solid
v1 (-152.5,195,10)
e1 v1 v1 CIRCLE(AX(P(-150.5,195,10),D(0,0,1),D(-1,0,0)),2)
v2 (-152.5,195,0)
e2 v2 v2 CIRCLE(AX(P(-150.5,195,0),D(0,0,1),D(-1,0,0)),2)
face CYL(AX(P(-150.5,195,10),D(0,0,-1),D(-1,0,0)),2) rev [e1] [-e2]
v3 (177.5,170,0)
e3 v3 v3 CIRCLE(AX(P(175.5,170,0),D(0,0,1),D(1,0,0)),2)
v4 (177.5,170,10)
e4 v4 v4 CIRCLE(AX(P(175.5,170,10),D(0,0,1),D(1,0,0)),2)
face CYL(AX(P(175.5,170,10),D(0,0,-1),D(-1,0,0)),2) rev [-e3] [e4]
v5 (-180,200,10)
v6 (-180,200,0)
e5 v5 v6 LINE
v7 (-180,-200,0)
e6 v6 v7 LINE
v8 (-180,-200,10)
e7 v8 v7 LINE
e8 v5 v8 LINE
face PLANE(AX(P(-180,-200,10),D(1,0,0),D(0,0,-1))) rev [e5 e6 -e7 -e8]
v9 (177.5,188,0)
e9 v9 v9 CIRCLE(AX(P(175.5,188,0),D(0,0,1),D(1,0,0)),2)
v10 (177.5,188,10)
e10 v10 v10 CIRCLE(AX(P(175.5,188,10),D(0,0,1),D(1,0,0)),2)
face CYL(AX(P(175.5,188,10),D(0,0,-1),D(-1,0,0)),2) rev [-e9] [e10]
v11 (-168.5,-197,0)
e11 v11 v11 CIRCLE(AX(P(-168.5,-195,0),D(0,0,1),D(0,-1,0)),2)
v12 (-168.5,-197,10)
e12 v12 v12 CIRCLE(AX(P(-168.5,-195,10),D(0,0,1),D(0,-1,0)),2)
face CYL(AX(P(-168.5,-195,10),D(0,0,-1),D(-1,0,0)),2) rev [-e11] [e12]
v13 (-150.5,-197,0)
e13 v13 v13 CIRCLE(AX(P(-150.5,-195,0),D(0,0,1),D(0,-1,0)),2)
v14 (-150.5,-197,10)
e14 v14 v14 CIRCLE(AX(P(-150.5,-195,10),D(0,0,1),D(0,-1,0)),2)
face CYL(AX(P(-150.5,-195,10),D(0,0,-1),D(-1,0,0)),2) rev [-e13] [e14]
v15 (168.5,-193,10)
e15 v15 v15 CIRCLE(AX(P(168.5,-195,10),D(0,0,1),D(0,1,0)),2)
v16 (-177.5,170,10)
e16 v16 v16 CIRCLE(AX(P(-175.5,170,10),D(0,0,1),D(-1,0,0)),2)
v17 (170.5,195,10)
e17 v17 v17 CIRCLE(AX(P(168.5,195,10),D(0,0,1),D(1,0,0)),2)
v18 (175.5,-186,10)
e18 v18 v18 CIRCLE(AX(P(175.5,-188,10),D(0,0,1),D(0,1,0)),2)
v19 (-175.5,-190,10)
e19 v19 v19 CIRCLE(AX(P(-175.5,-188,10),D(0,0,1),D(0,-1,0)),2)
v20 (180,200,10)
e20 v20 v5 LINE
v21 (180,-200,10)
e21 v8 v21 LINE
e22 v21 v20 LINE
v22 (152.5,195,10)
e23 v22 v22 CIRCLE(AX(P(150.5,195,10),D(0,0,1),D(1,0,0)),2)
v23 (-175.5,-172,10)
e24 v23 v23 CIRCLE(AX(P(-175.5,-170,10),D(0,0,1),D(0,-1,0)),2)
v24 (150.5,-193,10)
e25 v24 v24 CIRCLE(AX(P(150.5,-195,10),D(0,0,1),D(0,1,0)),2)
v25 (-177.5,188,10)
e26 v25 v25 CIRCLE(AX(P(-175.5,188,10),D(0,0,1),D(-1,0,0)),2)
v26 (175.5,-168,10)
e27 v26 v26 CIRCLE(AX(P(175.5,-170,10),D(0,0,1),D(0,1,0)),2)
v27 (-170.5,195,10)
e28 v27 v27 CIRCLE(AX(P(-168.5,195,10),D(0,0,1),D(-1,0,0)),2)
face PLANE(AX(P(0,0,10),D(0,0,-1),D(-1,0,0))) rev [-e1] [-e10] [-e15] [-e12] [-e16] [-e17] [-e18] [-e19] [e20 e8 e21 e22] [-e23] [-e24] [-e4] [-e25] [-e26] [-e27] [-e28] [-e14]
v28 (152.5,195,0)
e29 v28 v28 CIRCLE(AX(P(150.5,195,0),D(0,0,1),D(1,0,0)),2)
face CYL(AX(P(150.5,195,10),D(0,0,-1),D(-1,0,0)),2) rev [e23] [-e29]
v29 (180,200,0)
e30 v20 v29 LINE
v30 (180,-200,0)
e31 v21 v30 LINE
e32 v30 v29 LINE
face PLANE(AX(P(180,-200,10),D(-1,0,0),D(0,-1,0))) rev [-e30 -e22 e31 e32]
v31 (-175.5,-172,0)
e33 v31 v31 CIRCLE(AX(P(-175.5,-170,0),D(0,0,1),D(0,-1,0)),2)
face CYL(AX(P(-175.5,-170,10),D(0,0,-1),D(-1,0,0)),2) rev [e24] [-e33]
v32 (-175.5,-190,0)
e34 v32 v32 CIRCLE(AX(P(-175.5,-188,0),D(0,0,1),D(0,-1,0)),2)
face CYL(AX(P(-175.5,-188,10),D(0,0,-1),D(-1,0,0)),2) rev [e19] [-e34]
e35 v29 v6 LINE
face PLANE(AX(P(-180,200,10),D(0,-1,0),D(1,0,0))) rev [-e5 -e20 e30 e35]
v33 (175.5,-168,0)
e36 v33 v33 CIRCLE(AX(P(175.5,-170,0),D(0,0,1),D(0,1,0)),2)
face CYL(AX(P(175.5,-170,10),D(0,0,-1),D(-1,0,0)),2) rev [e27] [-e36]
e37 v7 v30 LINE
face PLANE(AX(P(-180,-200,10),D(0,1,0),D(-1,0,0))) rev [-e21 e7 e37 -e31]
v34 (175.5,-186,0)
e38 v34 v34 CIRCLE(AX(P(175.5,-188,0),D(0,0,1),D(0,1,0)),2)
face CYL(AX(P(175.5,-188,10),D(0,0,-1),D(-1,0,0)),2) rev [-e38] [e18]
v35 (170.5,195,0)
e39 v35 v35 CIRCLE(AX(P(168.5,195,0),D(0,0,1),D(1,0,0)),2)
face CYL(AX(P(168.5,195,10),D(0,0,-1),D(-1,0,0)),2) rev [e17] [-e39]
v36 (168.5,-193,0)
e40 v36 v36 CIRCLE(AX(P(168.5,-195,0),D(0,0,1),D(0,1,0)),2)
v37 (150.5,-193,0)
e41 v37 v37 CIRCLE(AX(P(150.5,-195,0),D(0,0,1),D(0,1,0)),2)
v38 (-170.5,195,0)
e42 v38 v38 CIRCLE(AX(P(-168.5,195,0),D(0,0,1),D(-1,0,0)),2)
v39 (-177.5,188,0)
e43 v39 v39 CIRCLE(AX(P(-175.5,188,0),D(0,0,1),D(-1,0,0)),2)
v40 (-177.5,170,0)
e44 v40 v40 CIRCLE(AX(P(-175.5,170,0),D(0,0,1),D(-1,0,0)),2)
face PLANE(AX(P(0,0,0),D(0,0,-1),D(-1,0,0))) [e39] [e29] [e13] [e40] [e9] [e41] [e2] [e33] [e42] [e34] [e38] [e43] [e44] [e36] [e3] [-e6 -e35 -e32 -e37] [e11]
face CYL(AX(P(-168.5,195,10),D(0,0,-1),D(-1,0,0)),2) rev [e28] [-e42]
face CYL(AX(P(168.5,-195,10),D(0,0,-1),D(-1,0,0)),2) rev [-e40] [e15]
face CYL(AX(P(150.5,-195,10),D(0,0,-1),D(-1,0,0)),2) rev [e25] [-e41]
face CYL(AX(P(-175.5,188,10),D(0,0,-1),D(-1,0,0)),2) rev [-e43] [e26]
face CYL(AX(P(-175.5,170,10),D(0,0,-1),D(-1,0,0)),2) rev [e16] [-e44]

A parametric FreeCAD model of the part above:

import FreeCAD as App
import Part
import Sketcher
from FreeCAD import Vector
Q = App.Units.Quantity


def add_polygon(sketch, points):
    """Adds a closed chain of lines whose ends are joined by coincident constraints."""
    first, n = sketch.GeometryCount, len(points)
    for a, b in zip(points, points[1:] + points[:1]):
        sketch.addGeometry(Part.LineSegment(App.Vector(*a, 0), App.Vector(*b, 0)), False)
    for i in range(n):
        sketch.addConstraint(Sketcher.Constraint("Coincident", first + i, 2, first + (i + 1) % n, 1))

doc = App.newDocument("Part")
body = doc.addObject("PartDesign::Body", "Body")

sketch1 = body.newObject("Sketcher::SketchObject", "Sketch")
sketch1.AttachmentSupport = (doc.getObject("XY_Plane"), [""])
sketch1.MapMode = "FlatFace"
add_polygon(sketch1, [(-180, 200), (-180, -200), (180, -200), (180, 200)])
sketch1.addGeometry(Part.Circle(Vector(-168.5, -195, 0), Vector(0, 0, 1), 2), False)
sketch1.addGeometry(Part.Circle(Vector(-175.5, -188, 0), Vector(0, 0, 1), 2), False)
sketch1.addGeometry(Part.Circle(Vector(-150.5, -195, 0), Vector(0, 0, 1), 2), False)
sketch1.addGeometry(Part.Circle(Vector(-175.5, -170, 0), Vector(0, 0, 1), 2), False)
sketch1.addGeometry(Part.Circle(Vector(150.5, -195, 0), Vector(0, 0, 1), 2), False)
sketch1.addGeometry(Part.Circle(Vector(168.5, -195, 0), Vector(0, 0, 1), 2), False)
sketch1.addGeometry(Part.Circle(Vector(175.5, -188, 0), Vector(0, 0, 1), 2), False)
sketch1.addGeometry(Part.Circle(Vector(175.5, -170, 0), Vector(0, 0, 1), 2), False)
sketch1.addGeometry(Part.Circle(Vector(-175.5, 170, 0), Vector(0, 0, 1), 2), False)
sketch1.addGeometry(Part.Circle(Vector(-175.5, 188, 0), Vector(0, 0, 1), 2), False)
sketch1.addGeometry(Part.Circle(Vector(-168.5, 195, 0), Vector(0, 0, 1), 2), False)
sketch1.addGeometry(Part.Circle(Vector(-150.5, 195, 0), Vector(0, 0, 1), 2), False)
sketch1.addGeometry(Part.Circle(Vector(175.5, 170, 0), Vector(0, 0, 1), 2), False)
sketch1.addGeometry(Part.Circle(Vector(150.5, 195, 0), Vector(0, 0, 1), 2), False)
sketch1.addGeometry(Part.Circle(Vector(175.5, 188, 0), Vector(0, 0, 1), 2), False)
sketch1.addGeometry(Part.Circle(Vector(168.5, 195, 0), Vector(0, 0, 1), 2), False)
sketch1.addConstraint(Sketcher.Constraint("Vertical", 0))
sketch1.addConstraint(Sketcher.Constraint("Horizontal", 1))
sketch1.addConstraint(Sketcher.Constraint("Vertical", 2))
sketch1.addConstraint(Sketcher.Constraint("Horizontal", 3))
sketch1.addConstraint(Sketcher.Constraint("Equal", 4, 5))
sketch1.addConstraint(Sketcher.Constraint("Equal", 5, 6))
sketch1.addConstraint(Sketcher.Constraint("Equal", 6, 7))
sketch1.addConstraint(Sketcher.Constraint("Equal", 7, 8))
sketch1.addConstraint(Sketcher.Constraint("Equal", 8, 9))
sketch1.addConstraint(Sketcher.Constraint("Equal", 9, 10))
sketch1.addConstraint(Sketcher.Constraint("Equal", 10, 11))
sketch1.addConstraint(Sketcher.Constraint("Equal", 11, 12))
sketch1.addConstraint(Sketcher.Constraint("Equal", 12, 13))
sketch1.addConstraint(Sketcher.Constraint("Equal", 13, 14))
sketch1.addConstraint(Sketcher.Constraint("Equal", 14, 15))
sketch1.addConstraint(Sketcher.Constraint("Equal", 15, 16))
sketch1.addConstraint(Sketcher.Constraint("Equal", 16, 17))
sketch1.addConstraint(Sketcher.Constraint("Equal", 17, 18))
sketch1.addConstraint(Sketcher.Constraint("Equal", 18, 19))
sketch1.addConstraint(Sketcher.Constraint("Symmetric", 11, 3, 12, 3, -1, 1))
sketch1.addConstraint(Sketcher.Constraint("Symmetric", 10, 3, 13, 3, -1, 1))
sketch1.addConstraint(Sketcher.Constraint("Symmetric", 9, 3, 14, 3, -1, 1))
sketch1.addConstraint(Sketcher.Constraint("Symmetric", 8, 3, 15, 3, -1, 1))
sketch1.addConstraint(Sketcher.Constraint("Symmetric", 7, 3, 16, 3, -1, 1))
sketch1.addConstraint(Sketcher.Constraint("Symmetric", 6, 3, 17, 3, -1, 1))
sketch1.addConstraint(Sketcher.Constraint("Symmetric", 5, 3, 18, 3, -1, 1))
sketch1.addConstraint(Sketcher.Constraint("Symmetric", 4, 3, 19, 3, -1, 1))
sketch1.addConstraint(Sketcher.Constraint("Symmetric", 0, 2, 2, 2, -1, 1))
sketch1.addConstraint(Sketcher.Constraint("Symmetric", 6, 3, 8, 3, -2))
sketch1.addConstraint(Sketcher.Constraint("Symmetric", 4, 3, 9, 3, -2))
sketch1.addConstraint(Sketcher.Constraint("Symmetric", 5, 3, 10, 3, -2))
sketch1.addConstraint(Sketcher.Constraint("Symmetric", 7, 3, 11, 3, -2))
sketch1.addConstraint(Sketcher.Constraint("Horizontal", 4, 3, 6, 3))
sketch1.addConstraint(Sketcher.Constraint("Vertical", 5, 3, 7, 3))
sketch1.addConstraint(Sketcher.Constraint("Diameter", 4, Q("4 mm")))
sketch1.addConstraint(Sketcher.Constraint("DistanceX", 1, 1, 1, 2, Q("360 mm")))
sketch1.addConstraint(Sketcher.Constraint("DistanceY", 0, 2, 0, 1, Q("400 mm")))
sketch1.addConstraint(Sketcher.Constraint("DistanceY", 4, 3, -1, 1, Q("195 mm")))
sketch1.addConstraint(Sketcher.Constraint("DistanceY", 5, 3, -1, 1, Q("188 mm")))
sketch1.addConstraint(Sketcher.Constraint("DistanceY", 7, 3, -1, 1, Q("170 mm")))
sketch1.addConstraint(Sketcher.Constraint("DistanceX", 5, 3, 4, 3, Q("7 mm")))
sketch1.addConstraint(Sketcher.Constraint("DistanceX", 4, 3, 6, 3, Q("18 mm")))
sketch1.addConstraint(Sketcher.Constraint("DistanceX", 6, 3, 8, 3, Q("301 mm")))
pad1 = body.newObject("PartDesign::Pad", "Pad")
pad1.Profile = sketch1
pad1.Length = 10

doc.recompute()
